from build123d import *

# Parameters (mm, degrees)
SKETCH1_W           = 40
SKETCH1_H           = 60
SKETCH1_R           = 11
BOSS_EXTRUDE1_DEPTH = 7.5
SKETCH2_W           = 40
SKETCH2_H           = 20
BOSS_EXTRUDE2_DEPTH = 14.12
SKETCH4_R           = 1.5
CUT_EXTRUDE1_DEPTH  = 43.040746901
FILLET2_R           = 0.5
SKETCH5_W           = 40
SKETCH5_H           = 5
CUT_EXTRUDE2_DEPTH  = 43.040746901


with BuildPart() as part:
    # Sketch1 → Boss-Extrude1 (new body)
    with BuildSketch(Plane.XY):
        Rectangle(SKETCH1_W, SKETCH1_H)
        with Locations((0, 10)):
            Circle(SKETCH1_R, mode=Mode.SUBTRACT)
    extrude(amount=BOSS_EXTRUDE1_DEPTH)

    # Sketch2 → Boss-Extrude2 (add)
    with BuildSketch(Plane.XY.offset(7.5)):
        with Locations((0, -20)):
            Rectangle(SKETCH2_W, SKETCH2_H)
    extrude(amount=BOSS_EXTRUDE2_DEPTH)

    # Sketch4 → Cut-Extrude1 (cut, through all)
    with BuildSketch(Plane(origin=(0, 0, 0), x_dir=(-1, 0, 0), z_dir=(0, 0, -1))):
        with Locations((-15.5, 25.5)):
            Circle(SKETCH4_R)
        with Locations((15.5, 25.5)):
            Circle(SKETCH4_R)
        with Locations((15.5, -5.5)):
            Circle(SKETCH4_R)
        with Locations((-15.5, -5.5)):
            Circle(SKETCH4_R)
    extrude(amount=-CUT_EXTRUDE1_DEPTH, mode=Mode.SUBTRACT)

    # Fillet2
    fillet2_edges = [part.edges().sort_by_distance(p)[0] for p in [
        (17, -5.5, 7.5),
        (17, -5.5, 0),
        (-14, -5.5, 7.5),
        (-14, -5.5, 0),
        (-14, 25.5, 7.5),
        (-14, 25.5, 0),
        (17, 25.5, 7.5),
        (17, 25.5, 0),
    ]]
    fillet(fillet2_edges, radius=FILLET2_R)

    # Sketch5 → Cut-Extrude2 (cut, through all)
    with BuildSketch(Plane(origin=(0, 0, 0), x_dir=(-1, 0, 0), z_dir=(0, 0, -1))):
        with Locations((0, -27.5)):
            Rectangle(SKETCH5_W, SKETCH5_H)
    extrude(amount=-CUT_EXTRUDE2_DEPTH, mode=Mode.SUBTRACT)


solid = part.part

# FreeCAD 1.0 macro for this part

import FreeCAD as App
import Part
import Sketcher
Q = App.Units.Quantity


def edges_at(feature, points):
    """Names of the edges that pass closest to the given points."""
    edges = feature.Shape.Edges
    near = lambda p: min(range(len(edges)), key=lambda i: edges[i].distToShape(Part.Vertex(*p))[0])
    return sorted({f"Edge{near(p) + 1}" for p in points})

doc = App.newDocument("Part")
body = doc.addObject("PartDesign::Body", "Body")

sketch1 = doc.addObject("Sketcher::SketchObject", "Sketch")
body.addObject(sketch1)
sketch1.AttachmentSupport = (doc.XY_Plane, [""])
sketch1.MapMode = "FlatFace"
sketch1.addGeometry([
    Part.LineSegment(App.Vector(-20, 30, 0), App.Vector(-20, -30, 0)),
    Part.LineSegment(App.Vector(-20, -30, 0), App.Vector(20, -30, 0)),
    Part.LineSegment(App.Vector(20, -30, 0), App.Vector(20, 30, 0)),
    Part.LineSegment(App.Vector(20, 30, 0), App.Vector(-20, 30, 0)),
    Part.Circle(App.Vector(0, 10, 0), App.Vector(0, 0, 1), 11),
], False)
sketch1.addConstraint([
    Sketcher.Constraint("Coincident", 0, 2, 1, 1),
    Sketcher.Constraint("Coincident", 1, 2, 2, 1),
    Sketcher.Constraint("Coincident", 2, 2, 3, 1),
    Sketcher.Constraint("Coincident", 3, 2, 0, 1),
    Sketcher.Constraint("Vertical", 0),
    Sketcher.Constraint("Horizontal", 1),
    Sketcher.Constraint("Vertical", 2),
    Sketcher.Constraint("Horizontal", 3),
    Sketcher.Constraint("Symmetric", 0, 2, 2, 2, -1, 1),
    Sketcher.Constraint("PointOnObject", 4, 3, -2),
    Sketcher.Constraint("Diameter", 4, Q("22 mm")),
    Sketcher.Constraint("DistanceX", 1, 1, 1, 2, Q("40 mm")),
    Sketcher.Constraint("DistanceY", 0, 2, 0, 1, Q("60 mm")),
    Sketcher.Constraint("DistanceY", -1, 1, 4, 3, Q("10 mm")),
])
pad1 = doc.addObject("PartDesign::Pad", "Pad")
body.addObject(pad1)
pad1.Profile = sketch1
pad1.Length = 7.5

sketch2 = doc.addObject("Sketcher::SketchObject", "Sketch001")
body.addObject(sketch2)
sketch2.AttachmentSupport = (doc.XY_Plane, [""])
sketch2.MapMode = "FlatFace"
sketch2.AttachmentOffset = App.Placement(App.Vector(0, 0, 7.5), App.Rotation())
sketch2.addGeometry([
    Part.LineSegment(App.Vector(-20, -10, 0), App.Vector(-20, -30, 0)),
    Part.LineSegment(App.Vector(-20, -30, 0), App.Vector(20, -30, 0)),
    Part.LineSegment(App.Vector(20, -30, 0), App.Vector(20, -10, 0)),
    Part.LineSegment(App.Vector(20, -10, 0), App.Vector(-20, -10, 0)),
], False)
sketch2.addConstraint([
    Sketcher.Constraint("Coincident", 0, 2, 1, 1),
    Sketcher.Constraint("Coincident", 1, 2, 2, 1),
    Sketcher.Constraint("Coincident", 2, 2, 3, 1),
    Sketcher.Constraint("Coincident", 3, 2, 0, 1),
    Sketcher.Constraint("Vertical", 0),
    Sketcher.Constraint("Horizontal", 1),
    Sketcher.Constraint("Vertical", 2),
    Sketcher.Constraint("Horizontal", 3),
    Sketcher.Constraint("DistanceX", 1, 1, 1, 2, Q("40 mm")),
    Sketcher.Constraint("DistanceY", 0, 2, 0, 1, Q("20 mm")),
    Sketcher.Constraint("DistanceX", 0, 2, -1, 1, Q("20 mm")),
    Sketcher.Constraint("DistanceY", 0, 2, -1, 1, Q("30 mm")),
])
pad2 = doc.addObject("PartDesign::Pad", "Pad001")
body.addObject(pad2)
pad2.Profile = sketch2
pad2.Length = 14.12

sketch3 = doc.addObject("Sketcher::SketchObject", "Sketch002")
body.addObject(sketch3)
sketch3.AttachmentSupport = (doc.XY_Plane, [""])
sketch3.MapMode = "FlatFace"
sketch3.addGeometry([
    Part.Circle(App.Vector(15.5, 25.5, 0), App.Vector(0, 0, 1), 1.5),
    Part.Circle(App.Vector(-15.5, 25.5, 0), App.Vector(0, 0, 1), 1.5),
    Part.Circle(App.Vector(-15.5, -5.5, 0), App.Vector(0, 0, 1), 1.5),
    Part.Circle(App.Vector(15.5, -5.5, 0), App.Vector(0, 0, 1), 1.5),
], False)
sketch3.addConstraint([
    Sketcher.Constraint("Equal", 0, 1),
    Sketcher.Constraint("Equal", 1, 2),
    Sketcher.Constraint("Equal", 2, 3),
    Sketcher.Constraint("Symmetric", 0, 3, 1, 3, -2),
    Sketcher.Constraint("Symmetric", 2, 3, 3, 3, -2),
    Sketcher.Constraint("Vertical", 1, 3, 2, 3),
    Sketcher.Constraint("Diameter", 0, Q("3 mm")),
    Sketcher.Constraint("DistanceX", 1, 3, 0, 3, Q("31 mm")),
    Sketcher.Constraint("DistanceY", 2, 3, 1, 3, Q("31 mm")),
    Sketcher.Constraint("DistanceY", -1, 1, 0, 3, Q("25.5 mm")),
])
pocket1 = doc.addObject("PartDesign::Pocket", "Pocket")
body.addObject(pocket1)
pocket1.Profile = sketch3
pocket1.Type = "ThroughAll"
pocket1.Reversed = True
doc.recompute()

fillet = doc.addObject("PartDesign::Fillet", "Fillet")
body.addObject(fillet)
fillet.Base = (pocket1, edges_at(pocket1, [
    (17, -5.5, 7.5),
    (17, -5.5, 0),
    (-14, -5.5, 7.5),
    (-14, -5.5, 0),
    (-14, 25.5, 7.5),
    (-14, 25.5, 0),
    (17, 25.5, 7.5),
    (17, 25.5, 0),
]))
fillet.Radius = 0.5

sketch4 = doc.addObject("Sketcher::SketchObject", "Sketch003")
body.addObject(sketch4)
sketch4.AttachmentSupport = (doc.XY_Plane, [""])
sketch4.MapMode = "FlatFace"
sketch4.addGeometry([
    Part.LineSegment(App.Vector(20, -25, 0), App.Vector(20, -30, 0)),
    Part.LineSegment(App.Vector(20, -30, 0), App.Vector(-20, -30, 0)),
    Part.LineSegment(App.Vector(-20, -30, 0), App.Vector(-20, -25, 0)),
    Part.LineSegment(App.Vector(-20, -25, 0), App.Vector(20, -25, 0)),
], False)
sketch4.addConstraint([
    Sketcher.Constraint("Coincident", 0, 2, 1, 1),
    Sketcher.Constraint("Coincident", 1, 2, 2, 1),
    Sketcher.Constraint("Coincident", 2, 2, 3, 1),
    Sketcher.Constraint("Coincident", 3, 2, 0, 1),
    Sketcher.Constraint("Vertical", 0),
    Sketcher.Constraint("Horizontal", 1),
    Sketcher.Constraint("Vertical", 2),
    Sketcher.Constraint("Horizontal", 3),
    Sketcher.Constraint("DistanceX", 1, 2, 1, 1, Q("40 mm")),
    Sketcher.Constraint("DistanceY", 0, 2, 0, 1, Q("5 mm")),
    Sketcher.Constraint("DistanceX", -1, 1, 0, 2, Q("20 mm")),
    Sketcher.Constraint("DistanceY", 0, 2, -1, 1, Q("30 mm")),
])
pocket2 = doc.addObject("PartDesign::Pocket", "Pocket001")
body.addObject(pocket2)
pocket2.Profile = sketch4
pocket2.Type = "ThroughAll"
pocket2.Reversed = True

doc.recompute()
